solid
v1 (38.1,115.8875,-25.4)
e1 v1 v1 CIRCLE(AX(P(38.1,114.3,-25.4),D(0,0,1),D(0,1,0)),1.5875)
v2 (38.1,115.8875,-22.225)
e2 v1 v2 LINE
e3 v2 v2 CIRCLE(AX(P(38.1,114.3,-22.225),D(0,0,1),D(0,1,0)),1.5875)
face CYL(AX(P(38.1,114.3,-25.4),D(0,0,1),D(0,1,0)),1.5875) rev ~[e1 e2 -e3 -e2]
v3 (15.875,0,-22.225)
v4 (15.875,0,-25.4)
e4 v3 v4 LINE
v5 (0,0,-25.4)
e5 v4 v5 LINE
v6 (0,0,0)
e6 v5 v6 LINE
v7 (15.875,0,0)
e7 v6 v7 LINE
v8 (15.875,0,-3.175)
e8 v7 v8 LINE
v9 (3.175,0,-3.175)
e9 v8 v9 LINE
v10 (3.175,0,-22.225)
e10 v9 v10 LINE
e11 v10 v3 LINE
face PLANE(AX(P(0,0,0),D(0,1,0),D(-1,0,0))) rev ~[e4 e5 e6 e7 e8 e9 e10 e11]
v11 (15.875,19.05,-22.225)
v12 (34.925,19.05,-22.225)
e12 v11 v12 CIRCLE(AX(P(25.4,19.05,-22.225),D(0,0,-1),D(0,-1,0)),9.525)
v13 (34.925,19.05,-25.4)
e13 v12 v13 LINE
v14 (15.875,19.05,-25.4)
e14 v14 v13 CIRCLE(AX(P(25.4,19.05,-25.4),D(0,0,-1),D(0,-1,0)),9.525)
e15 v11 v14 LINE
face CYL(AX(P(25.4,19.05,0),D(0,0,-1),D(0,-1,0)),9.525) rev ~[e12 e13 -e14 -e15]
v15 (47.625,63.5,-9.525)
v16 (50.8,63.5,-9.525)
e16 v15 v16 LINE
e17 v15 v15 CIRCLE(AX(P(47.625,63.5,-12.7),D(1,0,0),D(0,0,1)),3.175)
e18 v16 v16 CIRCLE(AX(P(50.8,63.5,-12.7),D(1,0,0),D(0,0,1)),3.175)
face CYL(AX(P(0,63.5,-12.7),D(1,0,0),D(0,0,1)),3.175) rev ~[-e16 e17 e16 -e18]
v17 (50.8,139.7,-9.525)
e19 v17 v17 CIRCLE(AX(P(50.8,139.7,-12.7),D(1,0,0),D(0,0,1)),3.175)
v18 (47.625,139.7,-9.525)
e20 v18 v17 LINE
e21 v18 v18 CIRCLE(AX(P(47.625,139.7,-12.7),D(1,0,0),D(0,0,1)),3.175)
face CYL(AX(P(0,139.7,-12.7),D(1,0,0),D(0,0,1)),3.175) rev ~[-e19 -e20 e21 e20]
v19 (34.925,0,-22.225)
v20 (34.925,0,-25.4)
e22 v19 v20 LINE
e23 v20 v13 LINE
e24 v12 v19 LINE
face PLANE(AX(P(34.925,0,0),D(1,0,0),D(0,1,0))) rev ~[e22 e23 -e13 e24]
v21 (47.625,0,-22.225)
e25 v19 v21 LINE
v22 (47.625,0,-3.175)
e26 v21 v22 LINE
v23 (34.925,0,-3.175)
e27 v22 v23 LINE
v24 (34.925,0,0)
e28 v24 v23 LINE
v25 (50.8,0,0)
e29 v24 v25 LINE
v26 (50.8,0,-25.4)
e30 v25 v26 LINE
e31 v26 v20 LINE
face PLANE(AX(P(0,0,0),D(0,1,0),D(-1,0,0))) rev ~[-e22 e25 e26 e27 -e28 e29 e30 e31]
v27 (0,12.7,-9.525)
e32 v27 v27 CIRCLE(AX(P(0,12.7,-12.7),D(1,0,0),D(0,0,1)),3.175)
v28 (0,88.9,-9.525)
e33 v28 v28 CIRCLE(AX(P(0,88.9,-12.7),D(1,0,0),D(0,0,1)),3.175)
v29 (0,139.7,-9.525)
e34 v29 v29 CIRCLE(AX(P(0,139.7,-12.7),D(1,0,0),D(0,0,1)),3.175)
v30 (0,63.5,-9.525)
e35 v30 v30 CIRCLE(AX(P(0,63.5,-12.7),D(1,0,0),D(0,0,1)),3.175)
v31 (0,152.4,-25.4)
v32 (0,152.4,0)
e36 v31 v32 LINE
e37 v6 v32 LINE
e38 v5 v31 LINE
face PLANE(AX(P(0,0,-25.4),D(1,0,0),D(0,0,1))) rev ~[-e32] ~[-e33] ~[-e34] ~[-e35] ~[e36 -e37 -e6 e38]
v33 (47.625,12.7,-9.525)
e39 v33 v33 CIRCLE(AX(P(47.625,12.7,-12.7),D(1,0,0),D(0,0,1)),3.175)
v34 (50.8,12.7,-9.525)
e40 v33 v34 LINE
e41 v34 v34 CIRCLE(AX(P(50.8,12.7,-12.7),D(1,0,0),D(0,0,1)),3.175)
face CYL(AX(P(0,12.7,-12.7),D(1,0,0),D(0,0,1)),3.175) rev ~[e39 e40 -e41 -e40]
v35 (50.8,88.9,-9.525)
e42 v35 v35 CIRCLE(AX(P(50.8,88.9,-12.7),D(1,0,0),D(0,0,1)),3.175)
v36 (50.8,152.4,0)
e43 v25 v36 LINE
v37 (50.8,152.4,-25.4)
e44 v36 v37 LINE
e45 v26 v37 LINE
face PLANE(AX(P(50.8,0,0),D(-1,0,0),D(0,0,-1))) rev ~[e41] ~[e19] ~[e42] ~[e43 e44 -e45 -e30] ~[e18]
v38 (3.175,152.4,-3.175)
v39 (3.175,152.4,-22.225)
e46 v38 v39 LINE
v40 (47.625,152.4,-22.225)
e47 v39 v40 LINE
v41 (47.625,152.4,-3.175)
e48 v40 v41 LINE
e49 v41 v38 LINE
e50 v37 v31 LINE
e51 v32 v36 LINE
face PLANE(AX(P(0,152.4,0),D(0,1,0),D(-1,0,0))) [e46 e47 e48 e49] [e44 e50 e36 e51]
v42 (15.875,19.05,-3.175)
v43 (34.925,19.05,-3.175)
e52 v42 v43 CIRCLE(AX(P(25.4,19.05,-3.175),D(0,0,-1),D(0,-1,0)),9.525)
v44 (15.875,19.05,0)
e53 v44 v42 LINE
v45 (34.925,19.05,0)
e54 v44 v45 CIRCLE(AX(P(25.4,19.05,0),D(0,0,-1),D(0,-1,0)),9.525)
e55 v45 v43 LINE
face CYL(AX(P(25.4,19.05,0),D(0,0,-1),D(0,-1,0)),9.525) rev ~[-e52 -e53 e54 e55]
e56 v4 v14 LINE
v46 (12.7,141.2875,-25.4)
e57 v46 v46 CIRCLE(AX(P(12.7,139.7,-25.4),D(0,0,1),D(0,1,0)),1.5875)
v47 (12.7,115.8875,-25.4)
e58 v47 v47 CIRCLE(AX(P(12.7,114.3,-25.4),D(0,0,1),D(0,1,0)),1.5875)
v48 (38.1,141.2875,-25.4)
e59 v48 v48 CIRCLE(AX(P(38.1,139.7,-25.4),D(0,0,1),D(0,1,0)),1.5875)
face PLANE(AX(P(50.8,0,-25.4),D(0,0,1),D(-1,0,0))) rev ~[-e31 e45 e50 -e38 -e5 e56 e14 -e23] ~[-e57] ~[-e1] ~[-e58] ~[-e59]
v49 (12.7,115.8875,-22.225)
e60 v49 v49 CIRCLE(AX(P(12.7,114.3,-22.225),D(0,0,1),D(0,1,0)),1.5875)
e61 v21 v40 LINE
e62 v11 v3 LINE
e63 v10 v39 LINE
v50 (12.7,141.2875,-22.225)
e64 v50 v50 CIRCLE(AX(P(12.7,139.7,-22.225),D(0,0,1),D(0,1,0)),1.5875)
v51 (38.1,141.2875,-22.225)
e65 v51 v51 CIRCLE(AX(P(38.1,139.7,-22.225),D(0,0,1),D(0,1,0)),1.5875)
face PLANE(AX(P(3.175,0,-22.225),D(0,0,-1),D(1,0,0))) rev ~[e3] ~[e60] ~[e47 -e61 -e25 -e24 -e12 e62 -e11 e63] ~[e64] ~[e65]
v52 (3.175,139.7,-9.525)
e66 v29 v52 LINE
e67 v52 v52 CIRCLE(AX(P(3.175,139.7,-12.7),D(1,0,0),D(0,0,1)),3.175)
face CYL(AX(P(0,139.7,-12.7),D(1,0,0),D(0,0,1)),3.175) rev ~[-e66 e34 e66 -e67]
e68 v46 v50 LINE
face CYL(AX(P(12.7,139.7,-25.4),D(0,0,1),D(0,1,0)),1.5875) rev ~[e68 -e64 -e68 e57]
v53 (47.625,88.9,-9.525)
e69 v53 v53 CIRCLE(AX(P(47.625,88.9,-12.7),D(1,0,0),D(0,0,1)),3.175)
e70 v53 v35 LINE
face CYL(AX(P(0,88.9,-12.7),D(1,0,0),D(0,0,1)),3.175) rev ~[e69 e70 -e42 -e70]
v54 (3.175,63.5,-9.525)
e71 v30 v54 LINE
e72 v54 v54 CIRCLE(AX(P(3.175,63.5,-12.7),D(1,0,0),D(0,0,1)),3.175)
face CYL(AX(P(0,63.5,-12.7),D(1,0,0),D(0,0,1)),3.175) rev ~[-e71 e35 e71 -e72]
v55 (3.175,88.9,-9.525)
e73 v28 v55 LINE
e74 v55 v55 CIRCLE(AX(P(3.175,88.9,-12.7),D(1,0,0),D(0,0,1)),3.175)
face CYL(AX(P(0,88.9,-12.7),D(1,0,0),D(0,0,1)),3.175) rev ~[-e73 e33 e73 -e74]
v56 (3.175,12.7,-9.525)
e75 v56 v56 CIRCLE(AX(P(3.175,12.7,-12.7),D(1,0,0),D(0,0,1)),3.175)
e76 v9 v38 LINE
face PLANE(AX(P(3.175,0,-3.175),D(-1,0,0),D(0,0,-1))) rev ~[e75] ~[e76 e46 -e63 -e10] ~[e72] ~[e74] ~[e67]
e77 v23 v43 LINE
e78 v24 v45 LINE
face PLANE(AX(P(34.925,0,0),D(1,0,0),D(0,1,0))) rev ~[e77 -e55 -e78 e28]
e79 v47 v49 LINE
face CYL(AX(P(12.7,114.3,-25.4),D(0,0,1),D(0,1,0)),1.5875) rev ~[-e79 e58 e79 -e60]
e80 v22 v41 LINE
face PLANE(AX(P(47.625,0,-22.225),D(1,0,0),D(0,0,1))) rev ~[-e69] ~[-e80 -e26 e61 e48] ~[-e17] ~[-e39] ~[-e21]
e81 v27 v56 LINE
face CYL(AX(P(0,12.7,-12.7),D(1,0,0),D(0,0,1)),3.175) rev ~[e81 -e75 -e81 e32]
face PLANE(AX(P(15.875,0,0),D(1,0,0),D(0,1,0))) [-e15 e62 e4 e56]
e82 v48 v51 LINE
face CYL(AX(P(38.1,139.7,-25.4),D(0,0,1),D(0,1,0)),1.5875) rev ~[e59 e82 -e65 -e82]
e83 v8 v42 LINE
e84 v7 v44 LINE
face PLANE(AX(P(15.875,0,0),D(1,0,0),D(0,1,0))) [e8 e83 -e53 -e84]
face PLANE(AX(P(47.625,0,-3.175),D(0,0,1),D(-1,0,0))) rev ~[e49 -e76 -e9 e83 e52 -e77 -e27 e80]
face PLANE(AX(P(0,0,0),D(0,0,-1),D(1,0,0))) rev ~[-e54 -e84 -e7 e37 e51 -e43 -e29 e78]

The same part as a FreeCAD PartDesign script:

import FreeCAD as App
import Part
import Sketcher
Q = App.Units.Quantity


def add_polygon(sketch, points):
    """Adds a closed chain of lines whose ends are joined by coincident constraints."""
    first, n = sketch.GeometryCount, len(points)
    for a, b in zip(points, points[1:] + points[:1]):
        sketch.addGeometry(Part.LineSegment(App.Vector(*a, 0), App.Vector(*b, 0)), False)
    for i in range(n):
        sketch.addConstraint(Sketcher.Constraint("Coincident", first + i, 2, first + (i + 1) % n, 1))

doc = App.newDocument("Part")
params = doc.addObject("Spreadsheet::Sheet", "Params")
for row, (alias, value) in enumerate([
    ("sketch1_width", "2 in"),
    ("sketch1_height", "1 in"),
    ("sketch1_width2", "1.75 in"),
    ("sketch1_height2", "0.75 in"),
    ("pad1_length", "6 in"),
    ("sketch2_diameter", "0.25 in"),
    ("hole_diameter", "0.25 in"),
    ("sketch3_diameter", "0.125 in"),
    ("hole2_diameter", "0.125 in"),
    ("hole2_depth", "0.125 in"),
    ("sketch4_diameter", "0.75 in"),
    ("hole3_diameter", "0.75 in"),
    ("hole3_depth", "1 in"),
    ("sketch5_width", "0.75 in"),
    ("pocket1_length", "1 in"),
], start=1):
    params.set(f"A{row}", alias)
    params.set(f"B{row}", "=" + value)
    params.setAlias(f"B{row}", alias)

body = doc.addObject("PartDesign::Body", "Body")

# Sketch on XZ plane
sketch1 = doc.addObject("Sketcher::SketchObject", "Sketch")
body.addObject(sketch1)
sketch1.AttachmentSupport = (doc.XZ_Plane, [""])
sketch1.MapMode = "FlatFace"
add_polygon(sketch1, [(0, -25), (0, 0), (51, 0), (51, -25)])  # lines 0-3
add_polygon(sketch1, [(3, -3), (3, -22), (48, -22), (48, -3)])  # lines 4-7
sketch1.addConstraint([
    Sketcher.Constraint("Vertical", 0),
    Sketcher.Constraint("Horizontal", 1),
    Sketcher.Constraint("Vertical", 2),
    Sketcher.Constraint("Horizontal", 3),
    Sketcher.Constraint("Vertical", 4),
    Sketcher.Constraint("Horizontal", 5),
    Sketcher.Constraint("Vertical", 6),
    Sketcher.Constraint("Horizontal", 7),
    Sketcher.Constraint("Coincident", 0, 2, -1, 1),
    Sketcher.Constraint("DistanceX", 1, 1, 1, 2, Q("2 in")),
    Sketcher.Constraint("DistanceY", 0, 1, 0, 2, Q("1 in")),
    Sketcher.Constraint("DistanceX", 5, 1, 5, 2, Q("1.75 in")),
    Sketcher.Constraint("DistanceY", 4, 2, 4, 1, Q("0.75 in")),
    Sketcher.Constraint("DistanceX", -1, 1, 4, 2, Q("0.125 in")),
    Sketcher.Constraint("DistanceY", 6, 2, -1, 1, Q("0.125 in")),
])
sketch1.setExpression("Constraints[17]", "Params.sketch1_width")
sketch1.setExpression("Constraints[18]", "Params.sketch1_height")
sketch1.setExpression("Constraints[19]", "Params.sketch1_width2")
sketch1.setExpression("Constraints[20]", "Params.sketch1_height2")
pad1 = doc.addObject("PartDesign::Pad", "Pad")
body.addObject(pad1)
pad1.Profile = sketch1
pad1.setExpression("Length", "Params.pad1_length")
pad1.Reversed = True

# Sketch on YZ plane
sketch2 = doc.addObject("Sketcher::SketchObject", "Sketch001")
body.addObject(sketch2)
sketch2.AttachmentSupport = (doc.YZ_Plane, [""])
sketch2.MapMode = "FlatFace"
sketch2.addGeometry([
    Part.Circle(App.Vector(139.7, -12.7, 0), App.Vector(0, 0, 1), 3.2),
    Part.Circle(App.Vector(88.9, -12.7, 0), App.Vector(0, 0, 1), 3.2),
    Part.Circle(App.Vector(63.5, -12.7, 0), App.Vector(0, 0, 1), 3.2),
    Part.Circle(App.Vector(12.7, -12.7, 0), App.Vector(0, 0, 1), 3.2),
], False)
sketch2.addConstraint([
    Sketcher.Constraint("Equal", 0, 1),
    Sketcher.Constraint("Equal", 1, 2),
    Sketcher.Constraint("Equal", 2, 3),
    Sketcher.Constraint("Horizontal", 0, 3, 1, 3),
    Sketcher.Constraint("Horizontal", 1, 3, 2, 3),
    Sketcher.Constraint("Horizontal", 2, 3, 3, 3),
    Sketcher.Constraint("Diameter", 0, Q("0.25 in")),
    Sketcher.Constraint("DistanceX", 1, 3, 0, 3, Q("2 in")),
    Sketcher.Constraint("DistanceX", 2, 3, 1, 3, Q("1 in")),
    Sketcher.Constraint("DistanceX", 3, 3, 2, 3, Q("2 in")),
    Sketcher.Constraint("DistanceX", -1, 1, 0, 3, Q("5.5 in")),
    Sketcher.Constraint("DistanceY", 0, 3, -1, 1, Q("0.5 in")),
])
sketch2.setExpression("Constraints[6]", "Params.sketch2_diameter")
doc.recompute()
hole = doc.addObject("PartDesign::Hole", "Hole")
body.addObject(hole)
hole.Profile = sketch2
hole.ThreadType = "None"
hole.setExpression("Diameter", "Params.hole_diameter")
hole.DepthType = "ThroughAll"
hole.Reversed = True

# Sketch on XY plane
sketch3 = doc.addObject("Sketcher::SketchObject", "Sketch002")
body.addObject(sketch3)
sketch3.AttachmentSupport = (doc.XY_Plane, [""])
sketch3.MapMode = "FlatFace"
sketch3.AttachmentOffset = App.Placement(App.Vector(0, 0, -1 * 25.4), App.Rotation())
sketch3.addGeometry([
    Part.Circle(App.Vector(38.1, 139.7, 0), App.Vector(0, 0, 1), 1.6),
    Part.Circle(App.Vector(38.1, 114.3, 0), App.Vector(0, 0, 1), 1.6),
    Part.Circle(App.Vector(12.7, 114.3, 0), App.Vector(0, 0, 1), 1.6),
    Part.Circle(App.Vector(12.7, 139.7, 0), App.Vector(0, 0, 1), 1.6),
], False)
sketch3.addConstraint([
    Sketcher.Constraint("Equal", 0, 1),
    Sketcher.Constraint("Equal", 1, 2),
    Sketcher.Constraint("Equal", 2, 3),
    Sketcher.Constraint("Horizontal", 1, 3, 2, 3),
    Sketcher.Constraint("Horizontal", 0, 3, 3, 3),
    Sketcher.Constraint("Vertical", 0, 3, 1, 3),
    Sketcher.Constraint("Vertical", 2, 3, 3, 3),
    Sketcher.Constraint("Diameter", 0, Q("0.125 in")),
    Sketcher.Constraint("DistanceY", 1, 3, 0, 3, Q("1 in")),
    Sketcher.Constraint("DistanceX", 2, 3, 1, 3, Q("1 in")),
    Sketcher.Constraint("DistanceX", -1, 1, 0, 3, Q("1.5 in")),
    Sketcher.Constraint("DistanceY", -1, 1, 0, 3, Q("5.5 in")),
])
sketch3.setExpression("Constraints[7]", "Params.sketch3_diameter")
doc.recompute()
hole2 = doc.addObject("PartDesign::Hole", "Hole001")
body.addObject(hole2)
hole2.Profile = sketch3
hole2.ThreadType = "None"
hole2.setExpression("Diameter", "Params.hole2_diameter")
hole2.DepthType = "Dimension"
hole2.setExpression("Depth", "Params.hole2_depth")
hole2.DrillPoint = "Angled"
hole2.DrillPointAngle = 118
hole2.Reversed = True

# Sketch on XY plane
sketch4 = doc.addObject("Sketcher::SketchObject", "Sketch003")
body.addObject(sketch4)
sketch4.AttachmentSupport = (doc.XY_Plane, [""])
sketch4.MapMode = "FlatFace"
sketch4.addGeometry(Part.Circle(App.Vector(25, 19, 0), App.Vector(0, 0, 1), 10), False)
sketch4.addConstraint([
    Sketcher.Constraint("Diameter", 0, Q("0.75 in")),
    Sketcher.Constraint("DistanceX", -1, 1, 0, 3, Q("1 in")),
    Sketcher.Constraint("DistanceY", -1, 1, 0, 3, Q("0.75 in")),
])
sketch4.setExpression("Constraints[0]", "Params.sketch4_diameter")
doc.recompute()
hole3 = doc.addObject("PartDesign::Hole", "Hole002")
body.addObject(hole3)
hole3.Profile = sketch4
hole3.ThreadType = "None"
hole3.setExpression("Diameter", "Params.hole3_diameter")
hole3.DepthType = "Dimension"
hole3.setExpression("Depth", "Params.hole3_depth")
hole3.DrillPoint = "Angled"
hole3.DrillPointAngle = 118

# Sketch on XY plane
sketch5 = doc.addObject("Sketcher::SketchObject", "Sketch004")
body.addObject(sketch5)
sketch5.AttachmentSupport = (doc.XY_Plane, [""])
sketch5.MapMode = "FlatFace"
add_polygon(sketch5, [(16, 19), (16, 0), (35, 0), (35, 19)])  # lines 0-3
sketch5.addConstraint([
    Sketcher.Constraint("Vertical", 0),
    Sketcher.Constraint("Horizontal", 1),
    Sketcher.Constraint("Vertical", 2),
    Sketcher.Constraint("Horizontal", 3),
    Sketcher.Constraint("PointOnObject", 0, 2, -1),
    Sketcher.Constraint("Equal", 3, 0),
    Sketcher.Constraint("DistanceX", 1, 1, 1, 2, Q("0.75 in")),
    Sketcher.Constraint("DistanceX", -1, 1, 0, 2, Q("0.625 in")),
])
sketch5.setExpression("Constraints[10]", "Params.sketch5_width")
pocket1 = doc.addObject("PartDesign::Pocket", "Pocket")
body.addObject(pocket1)
pocket1.Profile = sketch5
pocket1.setExpression("Length", "Params.pocket1_length")

doc.recompute()
